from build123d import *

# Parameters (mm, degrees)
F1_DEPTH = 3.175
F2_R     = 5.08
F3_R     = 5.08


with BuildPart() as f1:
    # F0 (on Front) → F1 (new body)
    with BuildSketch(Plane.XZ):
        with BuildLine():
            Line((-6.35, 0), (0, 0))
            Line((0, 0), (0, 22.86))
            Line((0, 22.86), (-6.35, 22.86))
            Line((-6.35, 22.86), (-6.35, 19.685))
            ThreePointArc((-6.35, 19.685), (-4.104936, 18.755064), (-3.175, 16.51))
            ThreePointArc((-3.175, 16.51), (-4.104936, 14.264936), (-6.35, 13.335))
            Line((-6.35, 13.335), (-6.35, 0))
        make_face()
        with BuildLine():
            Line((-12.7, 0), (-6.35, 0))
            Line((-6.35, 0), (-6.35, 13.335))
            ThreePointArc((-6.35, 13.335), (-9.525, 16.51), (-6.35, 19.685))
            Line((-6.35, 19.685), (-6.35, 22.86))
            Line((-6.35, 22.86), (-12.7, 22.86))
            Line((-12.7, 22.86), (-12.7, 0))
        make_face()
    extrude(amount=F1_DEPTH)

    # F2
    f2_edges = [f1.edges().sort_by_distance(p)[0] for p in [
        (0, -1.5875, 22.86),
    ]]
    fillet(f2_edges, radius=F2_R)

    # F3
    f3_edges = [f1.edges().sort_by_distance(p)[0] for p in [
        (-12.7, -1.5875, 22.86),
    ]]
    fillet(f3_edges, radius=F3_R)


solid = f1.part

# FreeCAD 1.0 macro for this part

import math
import FreeCAD as App
import Part
import Sketcher
from FreeCAD import Vector
Q = App.Units.Quantity


def edges_at(feature, points):
    """Names of the edges that pass closest to the given points."""
    edges = feature.Shape.Edges
    near = lambda p: min(range(len(edges)), key=lambda i: edges[i].distToShape(Part.Vertex(*p))[0])
    return sorted({f"Edge{near(p) + 1}" for p in points})


def add_polygon(sketch, points):
    """Adds a closed chain of lines whose ends are joined by coincident constraints."""
    first, n = sketch.GeometryCount, len(points)
    for a, b in zip(points, points[1:] + points[:1]):
        sketch.addGeometry(Part.LineSegment(App.Vector(*a, 0), App.Vector(*b, 0)), False)
    for i in range(n):
        sketch.addConstraint(Sketcher.Constraint("Coincident", first + i, 2, first + (i + 1) % n, 1))

doc = App.newDocument("Part")
params = doc.addObject("Spreadsheet::Sheet", "Params")
for row, (alias, value) in enumerate([
    ("sketch1_width", "0.5 in"),
    ("sketch1_height", "0.9 in"),
    ("sketch1_radius", "0.125 in"),
    ("pad1_length", "0.125 in"),
    ("fillet_radius", "0.2 in"),
    ("fillet2_radius", "0.2 in"),
], start=1):
    params.set(f"A{row}", alias)
    params.set(f"B{row}", "=" + value)
    params.setAlias(f"B{row}", alias)

body = doc.addObject("PartDesign::Body", "Body")

sketch1 = body.newObject("Sketcher::SketchObject", "Sketch")
sketch1.AttachmentSupport = (doc.getObject("XZ_Plane"), [""])
sketch1.MapMode = "FlatFace"
add_polygon(sketch1, [(0, 0), (0, 22.86), (-12.7, 22.86), (-12.7, 0)])
sketch1.addGeometry(Part.ArcOfCircle(Part.Circle(Vector(-6.35, 16.51, 0), Vector(0, 0, 1), 3.175), math.radians(0.000002), math.radians(89.999998)), False)
sketch1.addGeometry(Part.ArcOfCircle(Part.Circle(Vector(-6.35, 16.51, 0), Vector(0, 0, 1), 3.175), math.radians(-89.999998), math.radians(-0.000002)), False)
sketch1.addGeometry(Part.ArcOfCircle(Part.Circle(Vector(-6.35, 16.51, 0), Vector(0, 0, 1), 3.175), math.radians(90), math.radians(270)), False)
sketch1.addConstraint([
    Sketcher.Constraint("Tangent", 4, 1, 5, 2),
    Sketcher.Constraint("Tangent", 5, 1, 6, 2),
    Sketcher.Constraint("Tangent", 6, 1, 4, 2),
    Sketcher.Constraint("Vertical", 0),
    Sketcher.Constraint("Horizontal", 1),
    Sketcher.Constraint("Vertical", 2),
    Sketcher.Constraint("Horizontal", 3),
    Sketcher.Constraint("Coincident", 3, 2, -1, 1),
    Sketcher.Constraint("Horizontal", 6, 3, 4, 1),
    Sketcher.Constraint("Vertical", 6, 3, 5, 1),
    Sketcher.Constraint("Vertical", 5, 1, 6, 1),
    Sketcher.Constraint("DistanceX", 1, 2, 1, 1, Q("0.5 in")),
    Sketcher.Constraint("DistanceY", 0, 1, 0, 2, Q("0.9 in")),
    Sketcher.Constraint("Radius", 4, Q("0.125 in")),
    Sketcher.Constraint("DistanceX", 4, 3, -1, 1, Q("0.25 in")),
    Sketcher.Constraint("DistanceY", -1, 1, 4, 3, Q("0.65 in")),
])
sketch1.setExpression("Constraints[15]", "Params.sketch1_width")
sketch1.setExpression("Constraints[16]", "Params.sketch1_height")
sketch1.setExpression("Constraints[17]", "Params.sketch1_radius")
pad1 = body.newObject("PartDesign::Pad", "Pad")
pad1.Profile = sketch1
pad1.setExpression("Length", "Params.pad1_length")
doc.recompute()

fillet = body.newObject("PartDesign::Fillet", "Fillet")
fillet.Base = (pad1, edges_at(pad1, [(0, -1.587, 22.86)]))
fillet.setExpression("Radius", "Params.fillet_radius")
doc.recompute()

fillet2 = body.newObject("PartDesign::Fillet", "Fillet001")
fillet2.Base = (fillet, edges_at(fillet, [(-12.7, -1.587, 22.86)]))
fillet2.setExpression("Radius", "Params.fillet2_radius")

doc.recompute()
